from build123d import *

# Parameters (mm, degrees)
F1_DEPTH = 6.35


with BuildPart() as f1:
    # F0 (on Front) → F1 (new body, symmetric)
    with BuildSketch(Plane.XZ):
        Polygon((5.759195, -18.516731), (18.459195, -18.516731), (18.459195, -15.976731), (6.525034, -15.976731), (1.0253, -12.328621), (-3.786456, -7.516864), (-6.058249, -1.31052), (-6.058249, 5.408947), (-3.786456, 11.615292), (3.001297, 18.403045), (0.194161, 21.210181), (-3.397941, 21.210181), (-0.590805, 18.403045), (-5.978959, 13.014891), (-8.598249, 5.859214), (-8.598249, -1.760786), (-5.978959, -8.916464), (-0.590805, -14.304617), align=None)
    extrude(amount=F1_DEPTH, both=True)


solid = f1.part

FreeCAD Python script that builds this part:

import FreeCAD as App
import Part
import Sketcher
from FreeCAD import Vector
Q = App.Units.Quantity

doc = App.newDocument("Part")
body = doc.addObject("PartDesign::Body", "Body")

sketch1 = doc.addObject("Sketcher::SketchObject", "Sketch")
body.addObject(sketch1)
sketch1.AttachmentSupport = (doc.XZ_Plane, [""])
sketch1.MapMode = "FlatFace"
sketch1.addGeometry([
    Part.LineSegment(Vector(5.8, -18.5, 0), Vector(18.5, -18.5, 0)),
    Part.LineSegment(Vector(18.5, -18.5, 0), Vector(18.5, -16, 0)),
    Part.LineSegment(Vector(18.5, -16, 0), Vector(6.5, -16, 0)),
    Part.LineSegment(Vector(6.5, -16, 0), Vector(1, -12.3, 0)),
    Part.LineSegment(Vector(1, -12.3, 0), Vector(-3.8, -7.5, 0)),
    Part.LineSegment(Vector(-3.8, -7.5, 0), Vector(-6.1, -1.3, 0)),
    Part.LineSegment(Vector(-6.1, -1.3, 0), Vector(-6.1, 5.4, 0)),
    Part.LineSegment(Vector(-6.1, 5.4, 0), Vector(-3.8, 11.6, 0)),
    Part.LineSegment(Vector(-3.8, 11.6, 0), Vector(3, 18.4, 0)),
    Part.LineSegment(Vector(3, 18.4, 0), Vector(0.2, 21.2, 0)),
    Part.LineSegment(Vector(0.2, 21.2, 0), Vector(-3.4, 21.2, 0)),
    Part.LineSegment(Vector(-3.4, 21.2, 0), Vector(-0.6, 18.4, 0)),
    Part.LineSegment(Vector(-0.6, 18.4, 0), Vector(-6, 13, 0)),
    Part.LineSegment(Vector(-6, 13, 0), Vector(-8.6, 5.9, 0)),
    Part.LineSegment(Vector(-8.6, 5.9, 0), Vector(-8.6, -1.8, 0)),
    Part.LineSegment(Vector(-8.6, -1.8, 0), Vector(-6, -8.9, 0)),
    Part.LineSegment(Vector(-6, -8.9, 0), Vector(-0.6, -14.3, 0)),
    Part.LineSegment(Vector(-0.6, -14.3, 0), Vector(5.8, -18.5, 0)),
], False)
sketch1.addConstraint([
    Sketcher.Constraint("Coincident", 0, 2, 1, 1),
    Sketcher.Constraint("Coincident", 1, 2, 2, 1),
    Sketcher.Constraint("Coincident", 2, 2, 3, 1),
    Sketcher.Constraint("Coincident", 3, 2, 4, 1),
    Sketcher.Constraint("Coincident", 4, 2, 5, 1),
    Sketcher.Constraint("Coincident", 5, 2, 6, 1),
    Sketcher.Constraint("Coincident", 6, 2, 7, 1),
    Sketcher.Constraint("Coincident", 7, 2, 8, 1),
    Sketcher.Constraint("Coincident", 8, 2, 9, 1),
    Sketcher.Constraint("Coincident", 9, 2, 10, 1),
    Sketcher.Constraint("Coincident", 10, 2, 11, 1),
    Sketcher.Constraint("Coincident", 11, 2, 12, 1),
    Sketcher.Constraint("Coincident", 12, 2, 13, 1),
    Sketcher.Constraint("Coincident", 13, 2, 14, 1),
    Sketcher.Constraint("Coincident", 14, 2, 15, 1),
    Sketcher.Constraint("Coincident", 15, 2, 16, 1),
    Sketcher.Constraint("Coincident", 16, 2, 17, 1),
    Sketcher.Constraint("Coincident", 17, 2, 0, 1),
    Sketcher.Constraint("Horizontal", 0),
    Sketcher.Constraint("Vertical", 1),
    Sketcher.Constraint("Horizontal", 2),
    Sketcher.Constraint("Vertical", 6),
    Sketcher.Constraint("Horizontal", 10),
    Sketcher.Constraint("Vertical", 14),
    Sketcher.Constraint("Perpendicular", 4, 8),
    Sketcher.Constraint("Perpendicular", 8, 9),
    Sketcher.Constraint("Parallel", 9, 11),
    Sketcher.Constraint("Perpendicular", 11, 12),
    Sketcher.Constraint("Parallel", 7, 13),
    Sketcher.Constraint("Parallel", 5, 15),
    Sketcher.Constraint("Perpendicular", 12, 16),
    Sketcher.Constraint("Parallel", 3, 17),
    Sketcher.Constraint("Horizontal", 8, 2, 11, 2),
    Sketcher.Constraint("Vertical", 4, 2, 7, 2),
    Sketcher.Constraint("Vertical", 12, 2, 15, 2),
    Sketcher.Constraint("Vertical", 11, 2, 16, 2),
    Sketcher.Constraint("Equal", 5, 7),
    Sketcher.Constraint("Equal", 12, 13),
    Sketcher.Constraint("Equal", 15, 16),
    Sketcher.Constraint("Equal", 16, 17),
    Sketcher.Constraint("DistanceX", 0, 1, 0, 2, Q("0.5 in")),
    Sketcher.Constraint("DistanceY", 1, 1, 1, 2, Q("0.1 in")),
    Sketcher.Constraint("DistanceY", 14, 2, 14, 1, Q("0.3 in")),
    Sketcher.Constraint("Distance", 12, Q("0.3 in")),
    Sketcher.Constraint("DistanceX", 13, 2, 6, 2, Q("0.1 in")),
    Sketcher.Constraint("DistanceX", 16, 2, 17, 2, Q("0.25 in")),
    Sketcher.Constraint("DistanceX", 10, 2, 10, 1, Q("3.592102 mm")),
    Sketcher.Constraint("DistanceY", 2, 2, 7, 2, Q("1.0863001 in")),
    Sketcher.Constraint("DistanceX", 2, 2, 2, 1, Q("11.934161 mm")),
    Sketcher.Constraint("DistanceX", -1, 1, 3, 2, Q("1.0253 mm")),
    Sketcher.Constraint("DistanceY", 3, 2, 5, 2, Q("11.018101 mm")),
    Sketcher.Constraint("DistanceY", 5, 2, 9, 2, Q("22.520701 mm")),
    Sketcher.Constraint("DistanceY", 7, 2, 12, 2, Q("1.399599 mm")),
    Sketcher.Constraint("DistanceY", 0, 2, -1, 1, Q("18.516731 mm")),
])
pad1 = doc.addObject("PartDesign::Pad", "Pad")
body.addObject(pad1)
pad1.Profile = sketch1
pad1.Length = Q("0.5 in")
pad1.Midplane = True

doc.recompute()
